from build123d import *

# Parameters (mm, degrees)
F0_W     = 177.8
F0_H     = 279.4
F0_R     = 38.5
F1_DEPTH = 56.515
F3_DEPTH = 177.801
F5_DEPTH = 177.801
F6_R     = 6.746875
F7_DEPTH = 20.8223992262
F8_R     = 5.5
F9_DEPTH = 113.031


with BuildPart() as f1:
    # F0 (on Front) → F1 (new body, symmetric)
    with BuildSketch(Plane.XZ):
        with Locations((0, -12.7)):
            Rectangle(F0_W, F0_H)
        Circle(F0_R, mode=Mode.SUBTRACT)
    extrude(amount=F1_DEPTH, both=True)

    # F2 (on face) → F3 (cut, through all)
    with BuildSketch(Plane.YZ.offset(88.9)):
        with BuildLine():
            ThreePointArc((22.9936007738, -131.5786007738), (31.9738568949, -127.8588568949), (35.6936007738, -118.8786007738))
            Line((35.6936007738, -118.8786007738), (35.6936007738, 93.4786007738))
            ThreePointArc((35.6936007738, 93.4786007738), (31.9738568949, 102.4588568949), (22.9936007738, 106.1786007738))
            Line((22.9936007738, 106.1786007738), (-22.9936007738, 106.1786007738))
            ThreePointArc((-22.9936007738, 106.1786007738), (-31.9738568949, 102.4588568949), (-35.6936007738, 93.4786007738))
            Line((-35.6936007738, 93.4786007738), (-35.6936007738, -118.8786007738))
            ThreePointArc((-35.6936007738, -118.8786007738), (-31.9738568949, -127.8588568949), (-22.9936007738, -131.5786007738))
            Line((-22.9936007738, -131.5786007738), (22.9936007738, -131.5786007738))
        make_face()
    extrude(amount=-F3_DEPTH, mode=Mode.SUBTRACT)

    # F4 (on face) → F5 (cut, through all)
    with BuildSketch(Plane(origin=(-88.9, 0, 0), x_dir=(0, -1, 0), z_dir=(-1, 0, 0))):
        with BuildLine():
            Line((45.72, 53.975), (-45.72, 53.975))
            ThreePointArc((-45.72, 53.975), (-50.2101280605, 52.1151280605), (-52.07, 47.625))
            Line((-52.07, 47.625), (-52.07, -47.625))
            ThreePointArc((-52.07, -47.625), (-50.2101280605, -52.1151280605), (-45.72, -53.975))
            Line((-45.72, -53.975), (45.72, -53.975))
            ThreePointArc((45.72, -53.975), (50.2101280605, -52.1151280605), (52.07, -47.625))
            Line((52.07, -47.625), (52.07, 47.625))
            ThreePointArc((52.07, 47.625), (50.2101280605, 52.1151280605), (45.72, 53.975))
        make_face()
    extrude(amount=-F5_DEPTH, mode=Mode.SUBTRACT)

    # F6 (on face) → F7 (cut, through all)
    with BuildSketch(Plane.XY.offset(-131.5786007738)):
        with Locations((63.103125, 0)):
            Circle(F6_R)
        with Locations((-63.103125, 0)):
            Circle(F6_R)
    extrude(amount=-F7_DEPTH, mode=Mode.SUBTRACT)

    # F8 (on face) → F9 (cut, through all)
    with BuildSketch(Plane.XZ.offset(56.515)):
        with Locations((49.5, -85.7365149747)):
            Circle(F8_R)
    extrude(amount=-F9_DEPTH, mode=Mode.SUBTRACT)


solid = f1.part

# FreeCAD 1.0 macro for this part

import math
import FreeCAD as App
import Part
import Sketcher
Q = App.Units.Quantity


def add_polygon(sketch, points):
    """Adds a closed chain of lines whose ends are joined by coincident constraints."""
    first, n = sketch.GeometryCount, len(points)
    for a, b in zip(points, points[1:] + points[:1]):
        sketch.addGeometry(Part.LineSegment(App.Vector(*a, 0), App.Vector(*b, 0)), False)
    for i in range(n):
        sketch.addConstraint(Sketcher.Constraint("Coincident", first + i, 2, first + (i + 1) % n, 1))

doc = App.newDocument("Part")
body = doc.addObject("PartDesign::Body", "Body")

# Sketch on XZ plane
sketch1 = doc.addObject("Sketcher::SketchObject", "Sketch")
body.addObject(sketch1)
sketch1.AttachmentSupport = (doc.XZ_Plane, [""])
sketch1.MapMode = "FlatFace"
add_polygon(sketch1, [(-88.9, 127), (-88.9, -152.4), (88.9, -152.4), (88.9, 127)])  # lines 0-3
sketch1.addGeometry(Part.Circle(App.Vector(0, 0, 0), App.Vector(0, 0, 1), 38.5), False)  # 4
sketch1.addConstraint(Sketcher.Constraint("Vertical", 0))
sketch1.addConstraint(Sketcher.Constraint("Horizontal", 1))
sketch1.addConstraint(Sketcher.Constraint("Vertical", 2))
sketch1.addConstraint(Sketcher.Constraint("Horizontal", 3))
sketch1.addConstraint(Sketcher.Constraint("Coincident", 4, 3, -1, 1))
sketch1.addConstraint(Sketcher.Constraint("DistanceX", 1, 1, 1, 2, Q("7 in")))
sketch1.addConstraint(Sketcher.Constraint("DistanceY", 0, 2, 0, 1, Q("11 in")))
sketch1.addConstraint(Sketcher.Constraint("DistanceY", 0, 2, -1, 1, Q("6 in")))
sketch1.addConstraint(Sketcher.Constraint("DistanceX", 0, 2, -1, 1, Q("3.5 in")))
sketch1.addConstraint(Sketcher.Constraint("Diameter", 4, Q("77 mm")))
pad1 = doc.addObject("PartDesign::Pad", "Pad")
body.addObject(pad1)
pad1.Profile = sketch1
pad1.Length = Q("4.45 in")
pad1.Midplane = True

# Sketch on YZ plane
sketch2 = doc.addObject("Sketcher::SketchObject", "Sketch001")
body.addObject(sketch2)
sketch2.AttachmentSupport = (doc.YZ_Plane, [""])
sketch2.MapMode = "FlatFace"
sketch2.AttachmentOffset = App.Placement(App.Vector(0, 0, 3.5 * 25.4), App.Rotation())
sketch2.addGeometry(Part.ArcOfCircle(Part.Circle(App.Vector(22.993601, -118.878601, 0), App.Vector(0, 0, 1), 12.7), math.radians(-90), math.radians(0)), False)
sketch2.addGeometry(Part.LineSegment(App.Vector(35.693601, -118.878601, 0), App.Vector(35.693601, 93.478601, 0)), False)
sketch2.addGeometry(Part.ArcOfCircle(Part.Circle(App.Vector(22.993601, 93.478601, 0), App.Vector(0, 0, 1), 12.7), math.radians(0), math.radians(90)), False)
sketch2.addGeometry(Part.LineSegment(App.Vector(22.993601, 106.178601, 0), App.Vector(-22.993601, 106.178601, 0)), False)
sketch2.addGeometry(Part.ArcOfCircle(Part.Circle(App.Vector(-22.993601, 93.478601, 0), App.Vector(0, 0, 1), 12.7), math.radians(90), math.radians(180)), False)
sketch2.addGeometry(Part.LineSegment(App.Vector(-35.693601, 93.478601, 0), App.Vector(-35.693601, -118.878601, 0)), False)
sketch2.addGeometry(Part.ArcOfCircle(Part.Circle(App.Vector(-22.993601, -118.878601, 0), App.Vector(0, 0, 1), 12.7), math.radians(180), math.radians(270)), False)
sketch2.addGeometry(Part.LineSegment(App.Vector(-22.993601, -131.578601, 0), App.Vector(22.993601, -131.578601, 0)), False)
sketch2.addConstraint(Sketcher.Constraint("Tangent", 0, 2, 1, 1))
sketch2.addConstraint(Sketcher.Constraint("Tangent", 1, 2, 2, 1))
sketch2.addConstraint(Sketcher.Constraint("Tangent", 2, 2, 3, 1))
sketch2.addConstraint(Sketcher.Constraint("Tangent", 3, 2, 4, 1))
sketch2.addConstraint(Sketcher.Constraint("Tangent", 4, 2, 5, 1))
sketch2.addConstraint(Sketcher.Constraint("Tangent", 5, 2, 6, 1))
sketch2.addConstraint(Sketcher.Constraint("Tangent", 6, 2, 7, 1))
sketch2.addConstraint(Sketcher.Constraint("Tangent", 7, 2, 0, 1))
sketch2.addConstraint(Sketcher.Constraint("Vertical", 1))
sketch2.addConstraint(Sketcher.Constraint("Horizontal", 3))
sketch2.addConstraint(Sketcher.Constraint("Vertical", 5))
sketch2.addConstraint(Sketcher.Constraint("Horizontal", 7))
sketch2.addConstraint(Sketcher.Constraint("Equal", 0, 2))
sketch2.addConstraint(Sketcher.Constraint("Equal", 2, 4))
sketch2.addConstraint(Sketcher.Constraint("Equal", 4, 6))
sketch2.addConstraint(Sketcher.Constraint("Radius", 0, Q("0.5 in")))
sketch2.addConstraint(Sketcher.Constraint("DistanceX", 3, 2, 3, 1, Q("45.987202 mm")))
sketch2.addConstraint(Sketcher.Constraint("DistanceY", 1, 1, 1, 2, Q("212.357202 mm")))
sketch2.addConstraint(Sketcher.Constraint("DistanceX", -1, 1, 0, 3, Q("22.993601 mm")))
sketch2.addConstraint(Sketcher.Constraint("DistanceY", 0, 3, -1, 1, Q("118.878601 mm")))
pocket1 = doc.addObject("PartDesign::Pocket", "Pocket")
body.addObject(pocket1)
pocket1.Profile = sketch2
pocket1.Type = "ThroughAll"

# Sketch on YZ plane
sketch3 = doc.addObject("Sketcher::SketchObject", "Sketch002")
body.addObject(sketch3)
sketch3.AttachmentSupport = (doc.YZ_Plane, [""])
sketch3.MapMode = "FlatFace"
sketch3.AttachmentOffset = App.Placement(App.Vector(0, 0, -3.5 * 25.4), App.Rotation())
sketch3.addGeometry(Part.LineSegment(App.Vector(-45.72, 53.975, 0), App.Vector(45.72, 53.975, 0)), False)
sketch3.addGeometry(Part.ArcOfCircle(Part.Circle(App.Vector(45.72, 47.625, 0), App.Vector(0, 0, 1), 6.35), math.radians(0), math.radians(90)), False)
sketch3.addGeometry(Part.LineSegment(App.Vector(52.07, 47.625, 0), App.Vector(52.07, -47.625, 0)), False)
sketch3.addGeometry(Part.ArcOfCircle(Part.Circle(App.Vector(45.72, -47.625, 0), App.Vector(0, 0, 1), 6.35), math.radians(-90), math.radians(0)), False)
sketch3.addGeometry(Part.LineSegment(App.Vector(45.72, -53.975, 0), App.Vector(-45.72, -53.975, 0)), False)
sketch3.addGeometry(Part.ArcOfCircle(Part.Circle(App.Vector(-45.72, -47.625, 0), App.Vector(0, 0, 1), 6.35), math.radians(180), math.radians(270)), False)
sketch3.addGeometry(Part.LineSegment(App.Vector(-52.07, -47.625, 0), App.Vector(-52.07, 47.625, 0)), False)
sketch3.addGeometry(Part.ArcOfCircle(Part.Circle(App.Vector(-45.72, 47.625, 0), App.Vector(0, 0, 1), 6.35), math.radians(90), math.radians(180)), False)
sketch3.addConstraint(Sketcher.Constraint("Tangent", 0, 2, 1, 2))
sketch3.addConstraint(Sketcher.Constraint("Tangent", 1, 1, 2, 1))
sketch3.addConstraint(Sketcher.Constraint("Tangent", 2, 2, 3, 2))
sketch3.addConstraint(Sketcher.Constraint("Tangent", 3, 1, 4, 1))
sketch3.addConstraint(Sketcher.Constraint("Tangent", 4, 2, 5, 2))
sketch3.addConstraint(Sketcher.Constraint("Tangent", 5, 1, 6, 1))
sketch3.addConstraint(Sketcher.Constraint("Tangent", 6, 2, 7, 2))
sketch3.addConstraint(Sketcher.Constraint("Tangent", 7, 1, 0, 1))
sketch3.addConstraint(Sketcher.Constraint("Horizontal", 0))
sketch3.addConstraint(Sketcher.Constraint("Vertical", 2))
sketch3.addConstraint(Sketcher.Constraint("Horizontal", 4))
sketch3.addConstraint(Sketcher.Constraint("Vertical", 6))
sketch3.addConstraint(Sketcher.Constraint("Equal", 1, 3))
sketch3.addConstraint(Sketcher.Constraint("Equal", 3, 5))
sketch3.addConstraint(Sketcher.Constraint("Equal", 5, 7))
sketch3.addConstraint(Sketcher.Constraint("Symmetric", 1, 3, 5, 3, -1, 1))
sketch3.addConstraint(Sketcher.Constraint("Radius", 1, Q("0.25 in")))
sketch3.addConstraint(Sketcher.Constraint("DistanceX", 0, 1, 0, 2, Q("3.6 in")))
sketch3.addConstraint(Sketcher.Constraint("DistanceY", 3, 3, 0, 2, Q("4 in")))
pocket2 = doc.addObject("PartDesign::Pocket", "Pocket001")
body.addObject(pocket2)
pocket2.Profile = sketch3
pocket2.Type = "ThroughAll"
pocket2.Reversed = True

# Sketch on XY plane
sketch4 = doc.addObject("Sketcher::SketchObject", "Sketch003")
body.addObject(sketch4)
sketch4.AttachmentSupport = (doc.XY_Plane, [""])
sketch4.MapMode = "FlatFace"
sketch4.AttachmentOffset = App.Placement(App.Vector(0, 0, -131.578601), App.Rotation())
sketch4.addGeometry(Part.Circle(App.Vector(63.103125, 0, 0), App.Vector(0, 0, 1), 6.746875), False)
sketch4.addGeometry(Part.Circle(App.Vector(-63.103125, 0, 0), App.Vector(0, 0, 1), 6.746875), False)
sketch4.addConstraint(Sketcher.Constraint("Equal", 0, 1))
sketch4.addConstraint(Sketcher.Constraint("Symmetric", 0, 3, 1, 3, -1, 1))
sketch4.addConstraint(Sketcher.Constraint("PointOnObject", 0, 3, -1))
sketch4.addConstraint(Sketcher.Constraint("Diameter", 0, Q("0.53125 in")))
sketch4.addConstraint(Sketcher.Constraint("DistanceX", -1, 1, 0, 3, Q("2.484375 in")))
pocket3 = doc.addObject("PartDesign::Pocket", "Pocket002")
body.addObject(pocket3)
pocket3.Profile = sketch4
pocket3.Type = "ThroughAll"

# Sketch on XZ plane
sketch5 = doc.addObject("Sketcher::SketchObject", "Sketch004")
body.addObject(sketch5)
sketch5.AttachmentSupport = (doc.XZ_Plane, [""])
sketch5.MapMode = "FlatFace"
sketch5.AttachmentOffset = App.Placement(App.Vector(0, 0, 2.225 * 25.4), App.Rotation())
sketch5.addGeometry(Part.Circle(App.Vector(49.5, -85.736515, 0), App.Vector(0, 0, 1), 5.5), False)
sketch5.addConstraint(Sketcher.Constraint("Diameter", 0, Q("11 mm")))
sketch5.addConstraint(Sketcher.Constraint("DistanceX", -1, 1, 0, 3, Q("49.5 mm")))
sketch5.addConstraint(Sketcher.Constraint("DistanceY", 0, 3, -1, 1, Q("85.736515 mm")))
pocket4 = doc.addObject("PartDesign::Pocket", "Pocket003")
body.addObject(pocket4)
pocket4.Profile = sketch5
pocket4.Type = "ThroughAll"

doc.recompute()
